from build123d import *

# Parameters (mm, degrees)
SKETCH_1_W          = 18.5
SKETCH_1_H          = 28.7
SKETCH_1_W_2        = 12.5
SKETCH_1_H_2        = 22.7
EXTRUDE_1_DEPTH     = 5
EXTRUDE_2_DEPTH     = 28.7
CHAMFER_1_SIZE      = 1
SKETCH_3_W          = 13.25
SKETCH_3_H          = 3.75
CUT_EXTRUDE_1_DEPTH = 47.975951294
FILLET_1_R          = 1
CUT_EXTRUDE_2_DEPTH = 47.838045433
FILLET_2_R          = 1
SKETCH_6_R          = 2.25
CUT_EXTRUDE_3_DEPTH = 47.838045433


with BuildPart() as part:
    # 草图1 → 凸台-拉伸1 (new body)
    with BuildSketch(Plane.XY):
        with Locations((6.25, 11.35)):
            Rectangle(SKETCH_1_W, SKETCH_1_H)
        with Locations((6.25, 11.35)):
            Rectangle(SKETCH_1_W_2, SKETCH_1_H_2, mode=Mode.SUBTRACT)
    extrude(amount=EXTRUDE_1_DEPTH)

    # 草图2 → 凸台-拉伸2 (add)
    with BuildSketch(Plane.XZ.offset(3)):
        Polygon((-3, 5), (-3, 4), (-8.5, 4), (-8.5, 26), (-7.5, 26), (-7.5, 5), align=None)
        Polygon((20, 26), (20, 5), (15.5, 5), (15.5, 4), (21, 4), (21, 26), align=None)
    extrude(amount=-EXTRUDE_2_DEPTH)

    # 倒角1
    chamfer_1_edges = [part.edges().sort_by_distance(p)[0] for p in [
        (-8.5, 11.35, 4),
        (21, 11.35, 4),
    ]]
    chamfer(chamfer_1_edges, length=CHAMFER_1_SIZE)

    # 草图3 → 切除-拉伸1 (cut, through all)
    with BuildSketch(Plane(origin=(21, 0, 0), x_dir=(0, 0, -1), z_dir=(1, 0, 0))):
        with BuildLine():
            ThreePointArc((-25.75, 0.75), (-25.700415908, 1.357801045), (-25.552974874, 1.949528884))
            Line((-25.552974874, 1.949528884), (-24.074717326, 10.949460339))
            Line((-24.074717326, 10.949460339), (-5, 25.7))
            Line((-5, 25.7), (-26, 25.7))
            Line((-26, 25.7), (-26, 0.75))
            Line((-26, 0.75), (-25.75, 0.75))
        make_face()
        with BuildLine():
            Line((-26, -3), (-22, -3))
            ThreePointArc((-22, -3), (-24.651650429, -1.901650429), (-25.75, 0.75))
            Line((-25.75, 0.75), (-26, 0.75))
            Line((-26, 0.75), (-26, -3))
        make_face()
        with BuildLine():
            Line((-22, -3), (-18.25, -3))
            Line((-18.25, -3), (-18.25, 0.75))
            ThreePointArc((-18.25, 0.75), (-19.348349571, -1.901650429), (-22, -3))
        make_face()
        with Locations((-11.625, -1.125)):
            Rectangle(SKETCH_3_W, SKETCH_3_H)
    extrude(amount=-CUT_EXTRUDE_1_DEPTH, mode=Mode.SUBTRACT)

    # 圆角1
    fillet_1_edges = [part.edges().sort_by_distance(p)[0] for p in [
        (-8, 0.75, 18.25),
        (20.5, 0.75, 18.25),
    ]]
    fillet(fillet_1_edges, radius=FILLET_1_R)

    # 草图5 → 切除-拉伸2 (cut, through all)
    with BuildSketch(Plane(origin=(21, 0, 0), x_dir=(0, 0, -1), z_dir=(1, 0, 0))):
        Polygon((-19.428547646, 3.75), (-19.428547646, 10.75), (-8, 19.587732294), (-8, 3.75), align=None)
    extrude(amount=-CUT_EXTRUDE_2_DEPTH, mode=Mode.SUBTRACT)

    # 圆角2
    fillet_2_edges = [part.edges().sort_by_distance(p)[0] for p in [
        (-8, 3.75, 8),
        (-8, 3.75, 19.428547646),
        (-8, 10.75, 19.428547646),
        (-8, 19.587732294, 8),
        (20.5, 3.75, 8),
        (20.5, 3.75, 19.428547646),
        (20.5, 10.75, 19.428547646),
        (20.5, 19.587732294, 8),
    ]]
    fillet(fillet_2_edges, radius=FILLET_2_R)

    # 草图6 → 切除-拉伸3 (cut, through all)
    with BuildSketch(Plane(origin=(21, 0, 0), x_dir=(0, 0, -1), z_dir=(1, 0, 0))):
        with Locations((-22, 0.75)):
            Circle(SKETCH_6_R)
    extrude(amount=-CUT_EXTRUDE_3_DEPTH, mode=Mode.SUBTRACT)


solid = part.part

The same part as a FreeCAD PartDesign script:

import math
import FreeCAD as App
import Part
import Sketcher
from FreeCAD import Vector
Q = App.Units.Quantity


def edges_at(feature, points):
    """Names of the edges that pass closest to the given points."""
    edges = feature.Shape.Edges
    near = lambda p: min(range(len(edges)), key=lambda i: edges[i].distToShape(Part.Vertex(*p))[0])
    return sorted({f"Edge{near(p) + 1}" for p in points})

doc = App.newDocument("Part")
params = doc.addObject("Spreadsheet::Sheet", "Params")
for row, (alias, value) in enumerate([
    ("sketch1_width", "18.5 mm"),
    ("sketch1_width2", "12.5 mm"),
    ("sketch1_height", "28.7 mm"),
    ("sketch1_height2", "22.7 mm"),
    ("pad1_length", "5 mm"),
    ("sketch2_width", "1 mm"),
    ("sketch2_height", "21 mm"),
    ("sketch2_width2", "4.5 mm"),
    ("pad2_length", "28.7 mm"),
    ("chamfer_size", "1 mm"),
    ("sketch3_height", "21 mm"),
    ("sketch3_height2", "4 mm"),
    ("sketch3_radius", "3.75 mm"),
    ("sketch3_width", "28.7 mm"),
    ("fillet_radius", "1 mm"),
    ("sketch4_width", "7 mm"),
    ("fillet2_radius", "1 mm"),
    ("sketch5_diameter", "4.5 mm"),
], start=1):
    params.set(f"A{row}", alias)
    params.set(f"B{row}", "=" + value)
    params.setAlias(f"B{row}", alias)

body = doc.addObject("PartDesign::Body", "Body")

# Sketch on XY plane
sketch1 = doc.addObject("Sketcher::SketchObject", "Sketch")
body.addObject(sketch1)
sketch1.AttachmentSupport = (doc.XY_Plane, [""])
sketch1.MapMode = "FlatFace"
sketch1.addGeometry([
    Part.LineSegment(Vector(-3, 26, 0), Vector(-3, -3, 0)),  # 0
    Part.LineSegment(Vector(-3, -3, 0), Vector(16, -3, 0)),  # 1
    Part.LineSegment(Vector(16, -3, 0), Vector(16, 26, 0)),  # 2
    Part.LineSegment(Vector(16, 26, 0), Vector(-3, 26, 0)),  # 3
    Part.LineSegment(Vector(12, 0, 0), Vector(0, 0, 0)),  # 4
    Part.LineSegment(Vector(0, 0, 0), Vector(0, 23, 0)),  # 5
    Part.LineSegment(Vector(0, 23, 0), Vector(12, 23, 0)),  # 6
    Part.LineSegment(Vector(12, 23, 0), Vector(12, 0, 0)),  # 7
], False)
sketch1.addConstraint([
    Sketcher.Constraint("Coincident", 0, 2, 1, 1),
    Sketcher.Constraint("Coincident", 1, 2, 2, 1),
    Sketcher.Constraint("Coincident", 2, 2, 3, 1),
    Sketcher.Constraint("Coincident", 3, 2, 0, 1),
    Sketcher.Constraint("Coincident", 4, 2, 5, 1),
    Sketcher.Constraint("Coincident", 5, 2, 6, 1),
    Sketcher.Constraint("Coincident", 6, 2, 7, 1),
    Sketcher.Constraint("Coincident", 7, 2, 4, 1),
    Sketcher.Constraint("Vertical", 0),
    Sketcher.Constraint("Horizontal", 1),
    Sketcher.Constraint("Vertical", 2),
    Sketcher.Constraint("Horizontal", 3),
    Sketcher.Constraint("Horizontal", 4),
    Sketcher.Constraint("Vertical", 5),
    Sketcher.Constraint("Horizontal", 6),
    Sketcher.Constraint("Vertical", 7),
    Sketcher.Constraint("Coincident", 4, 2, -1, 1),
    Sketcher.Constraint("DistanceX", 1, 1, 1, 2, Q("18.5 mm")),
    Sketcher.Constraint("DistanceX", 4, 2, 4, 1, Q("12.5 mm")),
    Sketcher.Constraint("DistanceY", 0, 2, 0, 1, Q("28.7 mm")),
    Sketcher.Constraint("DistanceY", 5, 1, 5, 2, Q("22.7 mm")),
    Sketcher.Constraint("DistanceX", 0, 2, -1, 1, Q("3 mm")),
    Sketcher.Constraint("DistanceY", 0, 2, -1, 1, Q("3 mm")),
])
sketch1.setExpression("Constraints[17]", "Params.sketch1_width")
sketch1.setExpression("Constraints[18]", "Params.sketch1_width2")
sketch1.setExpression("Constraints[19]", "Params.sketch1_height")
sketch1.setExpression("Constraints[20]", "Params.sketch1_height2")
pad1 = doc.addObject("PartDesign::Pad", "Pad")
body.addObject(pad1)
pad1.Profile = sketch1
pad1.setExpression("Length", "Params.pad1_length")

# Sketch on XZ plane
sketch2 = doc.addObject("Sketcher::SketchObject", "Sketch001")
body.addObject(sketch2)
sketch2.AttachmentSupport = (doc.XZ_Plane, [""])
sketch2.MapMode = "FlatFace"
sketch2.AttachmentOffset = App.Placement(Vector(0, 0, 3), App.Rotation())
sketch2.addGeometry([
    Part.LineSegment(Vector(-3, 4, 0), Vector(-3, 5, 0)),  # 0
    Part.LineSegment(Vector(-3, 5, 0), Vector(-7.5, 5, 0)),  # 1
    Part.LineSegment(Vector(-7.5, 5, 0), Vector(-7.5, 26, 0)),  # 2
    Part.LineSegment(Vector(-7.5, 26, 0), Vector(-8.5, 26, 0)),  # 3
    Part.LineSegment(Vector(-8.5, 26, 0), Vector(-8.5, 4, 0)),  # 4
    Part.LineSegment(Vector(-8.5, 4, 0), Vector(-3, 4, 0)),  # 5
    Part.LineSegment(Vector(20, 26, 0), Vector(20, 5, 0)),  # 6
    Part.LineSegment(Vector(20, 5, 0), Vector(15.5, 5, 0)),  # 7
    Part.LineSegment(Vector(15.5, 5, 0), Vector(15.5, 4, 0)),  # 8
    Part.LineSegment(Vector(15.5, 4, 0), Vector(21, 4, 0)),  # 9
    Part.LineSegment(Vector(21, 4, 0), Vector(21, 26, 0)),  # 10
    Part.LineSegment(Vector(21, 26, 0), Vector(20, 26, 0)),  # 11
], False)
sketch2.addConstraint([
    Sketcher.Constraint("Coincident", 0, 2, 1, 1),
    Sketcher.Constraint("Coincident", 1, 2, 2, 1),
    Sketcher.Constraint("Coincident", 2, 2, 3, 1),
    Sketcher.Constraint("Coincident", 3, 2, 4, 1),
    Sketcher.Constraint("Coincident", 4, 2, 5, 1),
    Sketcher.Constraint("Coincident", 5, 2, 0, 1),
    Sketcher.Constraint("Coincident", 6, 2, 7, 1),
    Sketcher.Constraint("Coincident", 7, 2, 8, 1),
    Sketcher.Constraint("Coincident", 8, 2, 9, 1),
    Sketcher.Constraint("Coincident", 9, 2, 10, 1),
    Sketcher.Constraint("Coincident", 10, 2, 11, 1),
    Sketcher.Constraint("Coincident", 11, 2, 6, 1),
    Sketcher.Constraint("Vertical", 0),
    Sketcher.Constraint("Horizontal", 1),
    Sketcher.Constraint("Vertical", 2),
    Sketcher.Constraint("Horizontal", 3),
    Sketcher.Constraint("Vertical", 4),
    Sketcher.Constraint("Horizontal", 5),
    Sketcher.Constraint("Vertical", 6),
    Sketcher.Constraint("Horizontal", 7),
    Sketcher.Constraint("Vertical", 8),
    Sketcher.Constraint("Horizontal", 9),
    Sketcher.Constraint("Vertical", 10),
    Sketcher.Constraint("Horizontal", 11),
    Sketcher.Constraint("Horizontal", 1, 2, 6, 2),
    Sketcher.Constraint("Horizontal", 5, 2, 8, 2),
    Sketcher.Constraint("Horizontal", 3, 2, 10, 2),
    Sketcher.Constraint("Equal", 1, 7),
    Sketcher.Constraint("Equal", 5, 9),
    Sketcher.Constraint("Equal", 11, 0),
    Sketcher.Constraint("DistanceX", 3, 2, 3, 1, Q("1 mm")),
    Sketcher.Constraint("DistanceY", 2, 1, 2, 2, Q("21 mm")),
    Sketcher.Constraint("DistanceX", 1, 2, 1, 1, Q("4.5 mm")),
    Sketcher.Constraint("DistanceX", 0, 2, -1, 1, Q("3 mm")),
    Sketcher.Constraint("DistanceY", -1, 1, 0, 2, Q("5 mm")),
    Sketcher.Constraint("DistanceX", -1, 1, 6, 2, Q("20 mm")),
])
sketch2.setExpression("Constraints[30]", "Params.sketch2_width")
sketch2.setExpression("Constraints[31]", "Params.sketch2_height")
sketch2.setExpression("Constraints[32]", "Params.sketch2_width2")
pad2 = doc.addObject("PartDesign::Pad", "Pad001")
body.addObject(pad2)
pad2.Profile = sketch2
pad2.setExpression("Length", "Params.pad2_length")
pad2.Reversed = True
doc.recompute()

chamfer = doc.addObject("PartDesign::Chamfer", "Chamfer")
body.addObject(chamfer)
chamfer.Base = (pad2, edges_at(pad2, [(-8.5, 11.35, 4), (21, 11.35, 4)]))
chamfer.setExpression("Size", "Params.chamfer_size")

# Sketch on YZ plane
sketch3 = doc.addObject("Sketcher::SketchObject", "Sketch002")
body.addObject(sketch3)
sketch3.AttachmentSupport = (doc.YZ_Plane, [""])
sketch3.MapMode = "FlatFace"
sketch3.AttachmentOffset = App.Placement(Vector(0, 0, 21), App.Rotation())
sketch3.addGeometry([
    Part.ArcOfCircle(Part.Circle(Vector(0.8, 22, 0), Vector(0, 0, 1), 3.7), math.radians(71.34), math.radians(90)),  # 0
    Part.LineSegment(Vector(1.9, 25.6, 0), Vector(10.9, 24.1, 0)),  # 1
    Part.LineSegment(Vector(10.9, 24.1, 0), Vector(25.7, 5, 0)),  # 2
    Part.LineSegment(Vector(25.7, 5, 0), Vector(25.7, 26, 0)),  # 3
    Part.LineSegment(Vector(25.7, 26, 0), Vector(-3, 26, 0)),  # 4
    Part.LineSegment(Vector(-3, 26, 0), Vector(-3, 22, 0)),  # 5
    Part.ArcOfCircle(Part.Circle(Vector(0.8, 22, 0), Vector(0, 0, 1), 3.8), math.radians(90), math.radians(180)),  # 6
    Part.LineSegment(Vector(-3, 22, 0), Vector(-3, 5, 0)),  # 7
    Part.LineSegment(Vector(-3, 5, 0), Vector(0.8, 5, 0)),  # 8
    Part.LineSegment(Vector(0.8, 5, 0), Vector(0.8, 18.2, 0)),  # 9
    Part.ArcOfCircle(Part.Circle(Vector(0.8, 22, 0), Vector(0, 0, 1), 3.8), math.radians(-180), math.radians(-90)),  # 10
], False)
sketch3.addConstraint([
    Sketcher.Constraint("Coincident", 0, 1, 1, 1),
    Sketcher.Constraint("Coincident", 1, 2, 2, 1),
    Sketcher.Constraint("Coincident", 2, 2, 3, 1),
    Sketcher.Constraint("Coincident", 3, 2, 4, 1),
    Sketcher.Constraint("Coincident", 4, 2, 5, 1),
    Sketcher.Constraint("Tangent", 5, 2, 6, 2),
    Sketcher.Constraint("Tangent", 6, 1, 0, 2),
    Sketcher.Constraint("Coincident", 7, 2, 8, 1),
    Sketcher.Constraint("Coincident", 8, 2, 9, 1),
    Sketcher.Constraint("Coincident", 9, 2, 10, 2),
    Sketcher.Constraint("Tangent", 10, 1, 7, 1),
    Sketcher.Constraint("Vertical", 3),
    Sketcher.Constraint("Horizontal", 4),
    Sketcher.Constraint("Vertical", 5),
    Sketcher.Constraint("Vertical", 7),
    Sketcher.Constraint("Horizontal", 8),
    Sketcher.Constraint("Vertical", 9),
    Sketcher.Constraint("Coincident", 10, 3, 0, 3),
    Sketcher.Constraint("Coincident", 10, 1, 5, 2),
    Sketcher.Constraint("Horizontal", 2, 2, 7, 2),
    Sketcher.Constraint("Vertical", 10, 3, 6, 1),
    Sketcher.Constraint("Vertical", 6, 1, 8, 2),
    Sketcher.Constraint("DistanceY", 3, 1, 3, 2, Q("21 mm")),
    Sketcher.Constraint("DistanceY", 5, 2, 5, 1, Q("4 mm")),
    Sketcher.Constraint("Radius", 0, Q("3.75 mm")),
    Sketcher.Constraint("DistanceX", 4, 2, 4, 1, Q("28.7 mm")),
    Sketcher.Constraint("DistanceY", -1, 1, 0, 3, Q("22 mm")),
    Sketcher.Constraint("DistanceX", 4, 2, -1, 1, Q("3 mm")),
    Sketcher.Constraint("Distance", 2, Q("24.11272 mm")),
    Sketcher.Constraint("DistanceX", -1, 1, 0, 1, Q("1.949529 mm")),
    Sketcher.Constraint("DistanceX", -1, 1, 1, 2, Q("10.94946 mm")),
])
sketch3.setExpression("Constraints[22]", "Params.sketch3_height")
sketch3.setExpression("Constraints[23]", "Params.sketch3_height2")
sketch3.setExpression("Constraints[24]", "Params.sketch3_radius")
sketch3.setExpression("Constraints[25]", "Params.sketch3_width")
pocket1 = doc.addObject("PartDesign::Pocket", "Pocket")
body.addObject(pocket1)
pocket1.Profile = sketch3
pocket1.Type = "ThroughAll"
doc.recompute()

fillet = doc.addObject("PartDesign::Fillet", "Fillet")
body.addObject(fillet)
fillet.Base = (pocket1, edges_at(pocket1, [(-8, 0.75, 18.25), (20.5, 0.75, 18.25)]))
fillet.setExpression("Radius", "Params.fillet_radius")

# Sketch on YZ plane
sketch4 = doc.addObject("Sketcher::SketchObject", "Sketch003")
body.addObject(sketch4)
sketch4.AttachmentSupport = (doc.YZ_Plane, [""])
sketch4.MapMode = "FlatFace"
sketch4.AttachmentOffset = App.Placement(Vector(0, 0, 21), App.Rotation())
sketch4.addGeometry([
    Part.LineSegment(Vector(11, 19, 0), Vector(4, 19, 0)),
    Part.LineSegment(Vector(4, 19, 0), Vector(4, 8, 0)),
    Part.LineSegment(Vector(4, 8, 0), Vector(20, 8, 0)),
    Part.LineSegment(Vector(20, 8, 0), Vector(11, 19, 0)),
], False)
sketch4.addConstraint([
    Sketcher.Constraint("Coincident", 0, 2, 1, 1),
    Sketcher.Constraint("Coincident", 1, 2, 2, 1),
    Sketcher.Constraint("Coincident", 2, 2, 3, 1),
    Sketcher.Constraint("Coincident", 3, 2, 0, 1),
    Sketcher.Constraint("Horizontal", 0),
    Sketcher.Constraint("Vertical", 1),
    Sketcher.Constraint("Horizontal", 2),
    Sketcher.Constraint("DistanceX", 0, 2, 0, 1, Q("7 mm")),
    Sketcher.Constraint("DistanceY", -1, 1, 1, 2, Q("8 mm")),
    Sketcher.Constraint("DistanceX", -1, 1, 0, 2, Q("3.75 mm")),
    Sketcher.Constraint("Distance", 3, Q("14.447049 mm")),
    Sketcher.Constraint("DistanceX", 2, 1, 2, 2, Q("15.837732 mm")),
])
sketch4.setExpression("Constraints[7]", "Params.sketch4_width")
pocket2 = doc.addObject("PartDesign::Pocket", "Pocket001")
body.addObject(pocket2)
pocket2.Profile = sketch4
pocket2.Type = "ThroughAll"
doc.recompute()

fillet2 = doc.addObject("PartDesign::Fillet", "Fillet001")
body.addObject(fillet2)
fillet2.Base = (pocket2, edges_at(pocket2, [
    (-8, 3.75, 8),
    (-8, 3.75, 19.429),
    (-8, 10.75, 19.429),
    (-8, 19.588, 8),
    (20.5, 3.75, 8),
    (20.5, 3.75, 19.429),
    (20.5, 10.75, 19.429),
    (20.5, 19.588, 8),
]))
fillet2.setExpression("Radius", "Params.fillet2_radius")

# Sketch on YZ plane
sketch5 = doc.addObject("Sketcher::SketchObject", "Sketch004")
body.addObject(sketch5)
sketch5.AttachmentSupport = (doc.YZ_Plane, [""])
sketch5.MapMode = "FlatFace"
sketch5.AttachmentOffset = App.Placement(Vector(0, 0, 21), App.Rotation())
sketch5.addGeometry(Part.Circle(Vector(0.8, 22, 0), Vector(0, 0, 1), 2.2), False)
sketch5.addConstraint([
    Sketcher.Constraint("Diameter", 0, Q("4.5 mm")),
    Sketcher.Constraint("DistanceY", -1, 1, 0, 3, Q("22 mm")),
    Sketcher.Constraint("DistanceX", -1, 1, 0, 3, Q("0.75 mm")),
])
sketch5.setExpression("Constraints[0]", "Params.sketch5_diameter")
pocket3 = doc.addObject("PartDesign::Pocket", "Pocket002")
body.addObject(pocket3)
pocket3.Profile = sketch5
pocket3.Type = "ThroughAll"

doc.recompute()
